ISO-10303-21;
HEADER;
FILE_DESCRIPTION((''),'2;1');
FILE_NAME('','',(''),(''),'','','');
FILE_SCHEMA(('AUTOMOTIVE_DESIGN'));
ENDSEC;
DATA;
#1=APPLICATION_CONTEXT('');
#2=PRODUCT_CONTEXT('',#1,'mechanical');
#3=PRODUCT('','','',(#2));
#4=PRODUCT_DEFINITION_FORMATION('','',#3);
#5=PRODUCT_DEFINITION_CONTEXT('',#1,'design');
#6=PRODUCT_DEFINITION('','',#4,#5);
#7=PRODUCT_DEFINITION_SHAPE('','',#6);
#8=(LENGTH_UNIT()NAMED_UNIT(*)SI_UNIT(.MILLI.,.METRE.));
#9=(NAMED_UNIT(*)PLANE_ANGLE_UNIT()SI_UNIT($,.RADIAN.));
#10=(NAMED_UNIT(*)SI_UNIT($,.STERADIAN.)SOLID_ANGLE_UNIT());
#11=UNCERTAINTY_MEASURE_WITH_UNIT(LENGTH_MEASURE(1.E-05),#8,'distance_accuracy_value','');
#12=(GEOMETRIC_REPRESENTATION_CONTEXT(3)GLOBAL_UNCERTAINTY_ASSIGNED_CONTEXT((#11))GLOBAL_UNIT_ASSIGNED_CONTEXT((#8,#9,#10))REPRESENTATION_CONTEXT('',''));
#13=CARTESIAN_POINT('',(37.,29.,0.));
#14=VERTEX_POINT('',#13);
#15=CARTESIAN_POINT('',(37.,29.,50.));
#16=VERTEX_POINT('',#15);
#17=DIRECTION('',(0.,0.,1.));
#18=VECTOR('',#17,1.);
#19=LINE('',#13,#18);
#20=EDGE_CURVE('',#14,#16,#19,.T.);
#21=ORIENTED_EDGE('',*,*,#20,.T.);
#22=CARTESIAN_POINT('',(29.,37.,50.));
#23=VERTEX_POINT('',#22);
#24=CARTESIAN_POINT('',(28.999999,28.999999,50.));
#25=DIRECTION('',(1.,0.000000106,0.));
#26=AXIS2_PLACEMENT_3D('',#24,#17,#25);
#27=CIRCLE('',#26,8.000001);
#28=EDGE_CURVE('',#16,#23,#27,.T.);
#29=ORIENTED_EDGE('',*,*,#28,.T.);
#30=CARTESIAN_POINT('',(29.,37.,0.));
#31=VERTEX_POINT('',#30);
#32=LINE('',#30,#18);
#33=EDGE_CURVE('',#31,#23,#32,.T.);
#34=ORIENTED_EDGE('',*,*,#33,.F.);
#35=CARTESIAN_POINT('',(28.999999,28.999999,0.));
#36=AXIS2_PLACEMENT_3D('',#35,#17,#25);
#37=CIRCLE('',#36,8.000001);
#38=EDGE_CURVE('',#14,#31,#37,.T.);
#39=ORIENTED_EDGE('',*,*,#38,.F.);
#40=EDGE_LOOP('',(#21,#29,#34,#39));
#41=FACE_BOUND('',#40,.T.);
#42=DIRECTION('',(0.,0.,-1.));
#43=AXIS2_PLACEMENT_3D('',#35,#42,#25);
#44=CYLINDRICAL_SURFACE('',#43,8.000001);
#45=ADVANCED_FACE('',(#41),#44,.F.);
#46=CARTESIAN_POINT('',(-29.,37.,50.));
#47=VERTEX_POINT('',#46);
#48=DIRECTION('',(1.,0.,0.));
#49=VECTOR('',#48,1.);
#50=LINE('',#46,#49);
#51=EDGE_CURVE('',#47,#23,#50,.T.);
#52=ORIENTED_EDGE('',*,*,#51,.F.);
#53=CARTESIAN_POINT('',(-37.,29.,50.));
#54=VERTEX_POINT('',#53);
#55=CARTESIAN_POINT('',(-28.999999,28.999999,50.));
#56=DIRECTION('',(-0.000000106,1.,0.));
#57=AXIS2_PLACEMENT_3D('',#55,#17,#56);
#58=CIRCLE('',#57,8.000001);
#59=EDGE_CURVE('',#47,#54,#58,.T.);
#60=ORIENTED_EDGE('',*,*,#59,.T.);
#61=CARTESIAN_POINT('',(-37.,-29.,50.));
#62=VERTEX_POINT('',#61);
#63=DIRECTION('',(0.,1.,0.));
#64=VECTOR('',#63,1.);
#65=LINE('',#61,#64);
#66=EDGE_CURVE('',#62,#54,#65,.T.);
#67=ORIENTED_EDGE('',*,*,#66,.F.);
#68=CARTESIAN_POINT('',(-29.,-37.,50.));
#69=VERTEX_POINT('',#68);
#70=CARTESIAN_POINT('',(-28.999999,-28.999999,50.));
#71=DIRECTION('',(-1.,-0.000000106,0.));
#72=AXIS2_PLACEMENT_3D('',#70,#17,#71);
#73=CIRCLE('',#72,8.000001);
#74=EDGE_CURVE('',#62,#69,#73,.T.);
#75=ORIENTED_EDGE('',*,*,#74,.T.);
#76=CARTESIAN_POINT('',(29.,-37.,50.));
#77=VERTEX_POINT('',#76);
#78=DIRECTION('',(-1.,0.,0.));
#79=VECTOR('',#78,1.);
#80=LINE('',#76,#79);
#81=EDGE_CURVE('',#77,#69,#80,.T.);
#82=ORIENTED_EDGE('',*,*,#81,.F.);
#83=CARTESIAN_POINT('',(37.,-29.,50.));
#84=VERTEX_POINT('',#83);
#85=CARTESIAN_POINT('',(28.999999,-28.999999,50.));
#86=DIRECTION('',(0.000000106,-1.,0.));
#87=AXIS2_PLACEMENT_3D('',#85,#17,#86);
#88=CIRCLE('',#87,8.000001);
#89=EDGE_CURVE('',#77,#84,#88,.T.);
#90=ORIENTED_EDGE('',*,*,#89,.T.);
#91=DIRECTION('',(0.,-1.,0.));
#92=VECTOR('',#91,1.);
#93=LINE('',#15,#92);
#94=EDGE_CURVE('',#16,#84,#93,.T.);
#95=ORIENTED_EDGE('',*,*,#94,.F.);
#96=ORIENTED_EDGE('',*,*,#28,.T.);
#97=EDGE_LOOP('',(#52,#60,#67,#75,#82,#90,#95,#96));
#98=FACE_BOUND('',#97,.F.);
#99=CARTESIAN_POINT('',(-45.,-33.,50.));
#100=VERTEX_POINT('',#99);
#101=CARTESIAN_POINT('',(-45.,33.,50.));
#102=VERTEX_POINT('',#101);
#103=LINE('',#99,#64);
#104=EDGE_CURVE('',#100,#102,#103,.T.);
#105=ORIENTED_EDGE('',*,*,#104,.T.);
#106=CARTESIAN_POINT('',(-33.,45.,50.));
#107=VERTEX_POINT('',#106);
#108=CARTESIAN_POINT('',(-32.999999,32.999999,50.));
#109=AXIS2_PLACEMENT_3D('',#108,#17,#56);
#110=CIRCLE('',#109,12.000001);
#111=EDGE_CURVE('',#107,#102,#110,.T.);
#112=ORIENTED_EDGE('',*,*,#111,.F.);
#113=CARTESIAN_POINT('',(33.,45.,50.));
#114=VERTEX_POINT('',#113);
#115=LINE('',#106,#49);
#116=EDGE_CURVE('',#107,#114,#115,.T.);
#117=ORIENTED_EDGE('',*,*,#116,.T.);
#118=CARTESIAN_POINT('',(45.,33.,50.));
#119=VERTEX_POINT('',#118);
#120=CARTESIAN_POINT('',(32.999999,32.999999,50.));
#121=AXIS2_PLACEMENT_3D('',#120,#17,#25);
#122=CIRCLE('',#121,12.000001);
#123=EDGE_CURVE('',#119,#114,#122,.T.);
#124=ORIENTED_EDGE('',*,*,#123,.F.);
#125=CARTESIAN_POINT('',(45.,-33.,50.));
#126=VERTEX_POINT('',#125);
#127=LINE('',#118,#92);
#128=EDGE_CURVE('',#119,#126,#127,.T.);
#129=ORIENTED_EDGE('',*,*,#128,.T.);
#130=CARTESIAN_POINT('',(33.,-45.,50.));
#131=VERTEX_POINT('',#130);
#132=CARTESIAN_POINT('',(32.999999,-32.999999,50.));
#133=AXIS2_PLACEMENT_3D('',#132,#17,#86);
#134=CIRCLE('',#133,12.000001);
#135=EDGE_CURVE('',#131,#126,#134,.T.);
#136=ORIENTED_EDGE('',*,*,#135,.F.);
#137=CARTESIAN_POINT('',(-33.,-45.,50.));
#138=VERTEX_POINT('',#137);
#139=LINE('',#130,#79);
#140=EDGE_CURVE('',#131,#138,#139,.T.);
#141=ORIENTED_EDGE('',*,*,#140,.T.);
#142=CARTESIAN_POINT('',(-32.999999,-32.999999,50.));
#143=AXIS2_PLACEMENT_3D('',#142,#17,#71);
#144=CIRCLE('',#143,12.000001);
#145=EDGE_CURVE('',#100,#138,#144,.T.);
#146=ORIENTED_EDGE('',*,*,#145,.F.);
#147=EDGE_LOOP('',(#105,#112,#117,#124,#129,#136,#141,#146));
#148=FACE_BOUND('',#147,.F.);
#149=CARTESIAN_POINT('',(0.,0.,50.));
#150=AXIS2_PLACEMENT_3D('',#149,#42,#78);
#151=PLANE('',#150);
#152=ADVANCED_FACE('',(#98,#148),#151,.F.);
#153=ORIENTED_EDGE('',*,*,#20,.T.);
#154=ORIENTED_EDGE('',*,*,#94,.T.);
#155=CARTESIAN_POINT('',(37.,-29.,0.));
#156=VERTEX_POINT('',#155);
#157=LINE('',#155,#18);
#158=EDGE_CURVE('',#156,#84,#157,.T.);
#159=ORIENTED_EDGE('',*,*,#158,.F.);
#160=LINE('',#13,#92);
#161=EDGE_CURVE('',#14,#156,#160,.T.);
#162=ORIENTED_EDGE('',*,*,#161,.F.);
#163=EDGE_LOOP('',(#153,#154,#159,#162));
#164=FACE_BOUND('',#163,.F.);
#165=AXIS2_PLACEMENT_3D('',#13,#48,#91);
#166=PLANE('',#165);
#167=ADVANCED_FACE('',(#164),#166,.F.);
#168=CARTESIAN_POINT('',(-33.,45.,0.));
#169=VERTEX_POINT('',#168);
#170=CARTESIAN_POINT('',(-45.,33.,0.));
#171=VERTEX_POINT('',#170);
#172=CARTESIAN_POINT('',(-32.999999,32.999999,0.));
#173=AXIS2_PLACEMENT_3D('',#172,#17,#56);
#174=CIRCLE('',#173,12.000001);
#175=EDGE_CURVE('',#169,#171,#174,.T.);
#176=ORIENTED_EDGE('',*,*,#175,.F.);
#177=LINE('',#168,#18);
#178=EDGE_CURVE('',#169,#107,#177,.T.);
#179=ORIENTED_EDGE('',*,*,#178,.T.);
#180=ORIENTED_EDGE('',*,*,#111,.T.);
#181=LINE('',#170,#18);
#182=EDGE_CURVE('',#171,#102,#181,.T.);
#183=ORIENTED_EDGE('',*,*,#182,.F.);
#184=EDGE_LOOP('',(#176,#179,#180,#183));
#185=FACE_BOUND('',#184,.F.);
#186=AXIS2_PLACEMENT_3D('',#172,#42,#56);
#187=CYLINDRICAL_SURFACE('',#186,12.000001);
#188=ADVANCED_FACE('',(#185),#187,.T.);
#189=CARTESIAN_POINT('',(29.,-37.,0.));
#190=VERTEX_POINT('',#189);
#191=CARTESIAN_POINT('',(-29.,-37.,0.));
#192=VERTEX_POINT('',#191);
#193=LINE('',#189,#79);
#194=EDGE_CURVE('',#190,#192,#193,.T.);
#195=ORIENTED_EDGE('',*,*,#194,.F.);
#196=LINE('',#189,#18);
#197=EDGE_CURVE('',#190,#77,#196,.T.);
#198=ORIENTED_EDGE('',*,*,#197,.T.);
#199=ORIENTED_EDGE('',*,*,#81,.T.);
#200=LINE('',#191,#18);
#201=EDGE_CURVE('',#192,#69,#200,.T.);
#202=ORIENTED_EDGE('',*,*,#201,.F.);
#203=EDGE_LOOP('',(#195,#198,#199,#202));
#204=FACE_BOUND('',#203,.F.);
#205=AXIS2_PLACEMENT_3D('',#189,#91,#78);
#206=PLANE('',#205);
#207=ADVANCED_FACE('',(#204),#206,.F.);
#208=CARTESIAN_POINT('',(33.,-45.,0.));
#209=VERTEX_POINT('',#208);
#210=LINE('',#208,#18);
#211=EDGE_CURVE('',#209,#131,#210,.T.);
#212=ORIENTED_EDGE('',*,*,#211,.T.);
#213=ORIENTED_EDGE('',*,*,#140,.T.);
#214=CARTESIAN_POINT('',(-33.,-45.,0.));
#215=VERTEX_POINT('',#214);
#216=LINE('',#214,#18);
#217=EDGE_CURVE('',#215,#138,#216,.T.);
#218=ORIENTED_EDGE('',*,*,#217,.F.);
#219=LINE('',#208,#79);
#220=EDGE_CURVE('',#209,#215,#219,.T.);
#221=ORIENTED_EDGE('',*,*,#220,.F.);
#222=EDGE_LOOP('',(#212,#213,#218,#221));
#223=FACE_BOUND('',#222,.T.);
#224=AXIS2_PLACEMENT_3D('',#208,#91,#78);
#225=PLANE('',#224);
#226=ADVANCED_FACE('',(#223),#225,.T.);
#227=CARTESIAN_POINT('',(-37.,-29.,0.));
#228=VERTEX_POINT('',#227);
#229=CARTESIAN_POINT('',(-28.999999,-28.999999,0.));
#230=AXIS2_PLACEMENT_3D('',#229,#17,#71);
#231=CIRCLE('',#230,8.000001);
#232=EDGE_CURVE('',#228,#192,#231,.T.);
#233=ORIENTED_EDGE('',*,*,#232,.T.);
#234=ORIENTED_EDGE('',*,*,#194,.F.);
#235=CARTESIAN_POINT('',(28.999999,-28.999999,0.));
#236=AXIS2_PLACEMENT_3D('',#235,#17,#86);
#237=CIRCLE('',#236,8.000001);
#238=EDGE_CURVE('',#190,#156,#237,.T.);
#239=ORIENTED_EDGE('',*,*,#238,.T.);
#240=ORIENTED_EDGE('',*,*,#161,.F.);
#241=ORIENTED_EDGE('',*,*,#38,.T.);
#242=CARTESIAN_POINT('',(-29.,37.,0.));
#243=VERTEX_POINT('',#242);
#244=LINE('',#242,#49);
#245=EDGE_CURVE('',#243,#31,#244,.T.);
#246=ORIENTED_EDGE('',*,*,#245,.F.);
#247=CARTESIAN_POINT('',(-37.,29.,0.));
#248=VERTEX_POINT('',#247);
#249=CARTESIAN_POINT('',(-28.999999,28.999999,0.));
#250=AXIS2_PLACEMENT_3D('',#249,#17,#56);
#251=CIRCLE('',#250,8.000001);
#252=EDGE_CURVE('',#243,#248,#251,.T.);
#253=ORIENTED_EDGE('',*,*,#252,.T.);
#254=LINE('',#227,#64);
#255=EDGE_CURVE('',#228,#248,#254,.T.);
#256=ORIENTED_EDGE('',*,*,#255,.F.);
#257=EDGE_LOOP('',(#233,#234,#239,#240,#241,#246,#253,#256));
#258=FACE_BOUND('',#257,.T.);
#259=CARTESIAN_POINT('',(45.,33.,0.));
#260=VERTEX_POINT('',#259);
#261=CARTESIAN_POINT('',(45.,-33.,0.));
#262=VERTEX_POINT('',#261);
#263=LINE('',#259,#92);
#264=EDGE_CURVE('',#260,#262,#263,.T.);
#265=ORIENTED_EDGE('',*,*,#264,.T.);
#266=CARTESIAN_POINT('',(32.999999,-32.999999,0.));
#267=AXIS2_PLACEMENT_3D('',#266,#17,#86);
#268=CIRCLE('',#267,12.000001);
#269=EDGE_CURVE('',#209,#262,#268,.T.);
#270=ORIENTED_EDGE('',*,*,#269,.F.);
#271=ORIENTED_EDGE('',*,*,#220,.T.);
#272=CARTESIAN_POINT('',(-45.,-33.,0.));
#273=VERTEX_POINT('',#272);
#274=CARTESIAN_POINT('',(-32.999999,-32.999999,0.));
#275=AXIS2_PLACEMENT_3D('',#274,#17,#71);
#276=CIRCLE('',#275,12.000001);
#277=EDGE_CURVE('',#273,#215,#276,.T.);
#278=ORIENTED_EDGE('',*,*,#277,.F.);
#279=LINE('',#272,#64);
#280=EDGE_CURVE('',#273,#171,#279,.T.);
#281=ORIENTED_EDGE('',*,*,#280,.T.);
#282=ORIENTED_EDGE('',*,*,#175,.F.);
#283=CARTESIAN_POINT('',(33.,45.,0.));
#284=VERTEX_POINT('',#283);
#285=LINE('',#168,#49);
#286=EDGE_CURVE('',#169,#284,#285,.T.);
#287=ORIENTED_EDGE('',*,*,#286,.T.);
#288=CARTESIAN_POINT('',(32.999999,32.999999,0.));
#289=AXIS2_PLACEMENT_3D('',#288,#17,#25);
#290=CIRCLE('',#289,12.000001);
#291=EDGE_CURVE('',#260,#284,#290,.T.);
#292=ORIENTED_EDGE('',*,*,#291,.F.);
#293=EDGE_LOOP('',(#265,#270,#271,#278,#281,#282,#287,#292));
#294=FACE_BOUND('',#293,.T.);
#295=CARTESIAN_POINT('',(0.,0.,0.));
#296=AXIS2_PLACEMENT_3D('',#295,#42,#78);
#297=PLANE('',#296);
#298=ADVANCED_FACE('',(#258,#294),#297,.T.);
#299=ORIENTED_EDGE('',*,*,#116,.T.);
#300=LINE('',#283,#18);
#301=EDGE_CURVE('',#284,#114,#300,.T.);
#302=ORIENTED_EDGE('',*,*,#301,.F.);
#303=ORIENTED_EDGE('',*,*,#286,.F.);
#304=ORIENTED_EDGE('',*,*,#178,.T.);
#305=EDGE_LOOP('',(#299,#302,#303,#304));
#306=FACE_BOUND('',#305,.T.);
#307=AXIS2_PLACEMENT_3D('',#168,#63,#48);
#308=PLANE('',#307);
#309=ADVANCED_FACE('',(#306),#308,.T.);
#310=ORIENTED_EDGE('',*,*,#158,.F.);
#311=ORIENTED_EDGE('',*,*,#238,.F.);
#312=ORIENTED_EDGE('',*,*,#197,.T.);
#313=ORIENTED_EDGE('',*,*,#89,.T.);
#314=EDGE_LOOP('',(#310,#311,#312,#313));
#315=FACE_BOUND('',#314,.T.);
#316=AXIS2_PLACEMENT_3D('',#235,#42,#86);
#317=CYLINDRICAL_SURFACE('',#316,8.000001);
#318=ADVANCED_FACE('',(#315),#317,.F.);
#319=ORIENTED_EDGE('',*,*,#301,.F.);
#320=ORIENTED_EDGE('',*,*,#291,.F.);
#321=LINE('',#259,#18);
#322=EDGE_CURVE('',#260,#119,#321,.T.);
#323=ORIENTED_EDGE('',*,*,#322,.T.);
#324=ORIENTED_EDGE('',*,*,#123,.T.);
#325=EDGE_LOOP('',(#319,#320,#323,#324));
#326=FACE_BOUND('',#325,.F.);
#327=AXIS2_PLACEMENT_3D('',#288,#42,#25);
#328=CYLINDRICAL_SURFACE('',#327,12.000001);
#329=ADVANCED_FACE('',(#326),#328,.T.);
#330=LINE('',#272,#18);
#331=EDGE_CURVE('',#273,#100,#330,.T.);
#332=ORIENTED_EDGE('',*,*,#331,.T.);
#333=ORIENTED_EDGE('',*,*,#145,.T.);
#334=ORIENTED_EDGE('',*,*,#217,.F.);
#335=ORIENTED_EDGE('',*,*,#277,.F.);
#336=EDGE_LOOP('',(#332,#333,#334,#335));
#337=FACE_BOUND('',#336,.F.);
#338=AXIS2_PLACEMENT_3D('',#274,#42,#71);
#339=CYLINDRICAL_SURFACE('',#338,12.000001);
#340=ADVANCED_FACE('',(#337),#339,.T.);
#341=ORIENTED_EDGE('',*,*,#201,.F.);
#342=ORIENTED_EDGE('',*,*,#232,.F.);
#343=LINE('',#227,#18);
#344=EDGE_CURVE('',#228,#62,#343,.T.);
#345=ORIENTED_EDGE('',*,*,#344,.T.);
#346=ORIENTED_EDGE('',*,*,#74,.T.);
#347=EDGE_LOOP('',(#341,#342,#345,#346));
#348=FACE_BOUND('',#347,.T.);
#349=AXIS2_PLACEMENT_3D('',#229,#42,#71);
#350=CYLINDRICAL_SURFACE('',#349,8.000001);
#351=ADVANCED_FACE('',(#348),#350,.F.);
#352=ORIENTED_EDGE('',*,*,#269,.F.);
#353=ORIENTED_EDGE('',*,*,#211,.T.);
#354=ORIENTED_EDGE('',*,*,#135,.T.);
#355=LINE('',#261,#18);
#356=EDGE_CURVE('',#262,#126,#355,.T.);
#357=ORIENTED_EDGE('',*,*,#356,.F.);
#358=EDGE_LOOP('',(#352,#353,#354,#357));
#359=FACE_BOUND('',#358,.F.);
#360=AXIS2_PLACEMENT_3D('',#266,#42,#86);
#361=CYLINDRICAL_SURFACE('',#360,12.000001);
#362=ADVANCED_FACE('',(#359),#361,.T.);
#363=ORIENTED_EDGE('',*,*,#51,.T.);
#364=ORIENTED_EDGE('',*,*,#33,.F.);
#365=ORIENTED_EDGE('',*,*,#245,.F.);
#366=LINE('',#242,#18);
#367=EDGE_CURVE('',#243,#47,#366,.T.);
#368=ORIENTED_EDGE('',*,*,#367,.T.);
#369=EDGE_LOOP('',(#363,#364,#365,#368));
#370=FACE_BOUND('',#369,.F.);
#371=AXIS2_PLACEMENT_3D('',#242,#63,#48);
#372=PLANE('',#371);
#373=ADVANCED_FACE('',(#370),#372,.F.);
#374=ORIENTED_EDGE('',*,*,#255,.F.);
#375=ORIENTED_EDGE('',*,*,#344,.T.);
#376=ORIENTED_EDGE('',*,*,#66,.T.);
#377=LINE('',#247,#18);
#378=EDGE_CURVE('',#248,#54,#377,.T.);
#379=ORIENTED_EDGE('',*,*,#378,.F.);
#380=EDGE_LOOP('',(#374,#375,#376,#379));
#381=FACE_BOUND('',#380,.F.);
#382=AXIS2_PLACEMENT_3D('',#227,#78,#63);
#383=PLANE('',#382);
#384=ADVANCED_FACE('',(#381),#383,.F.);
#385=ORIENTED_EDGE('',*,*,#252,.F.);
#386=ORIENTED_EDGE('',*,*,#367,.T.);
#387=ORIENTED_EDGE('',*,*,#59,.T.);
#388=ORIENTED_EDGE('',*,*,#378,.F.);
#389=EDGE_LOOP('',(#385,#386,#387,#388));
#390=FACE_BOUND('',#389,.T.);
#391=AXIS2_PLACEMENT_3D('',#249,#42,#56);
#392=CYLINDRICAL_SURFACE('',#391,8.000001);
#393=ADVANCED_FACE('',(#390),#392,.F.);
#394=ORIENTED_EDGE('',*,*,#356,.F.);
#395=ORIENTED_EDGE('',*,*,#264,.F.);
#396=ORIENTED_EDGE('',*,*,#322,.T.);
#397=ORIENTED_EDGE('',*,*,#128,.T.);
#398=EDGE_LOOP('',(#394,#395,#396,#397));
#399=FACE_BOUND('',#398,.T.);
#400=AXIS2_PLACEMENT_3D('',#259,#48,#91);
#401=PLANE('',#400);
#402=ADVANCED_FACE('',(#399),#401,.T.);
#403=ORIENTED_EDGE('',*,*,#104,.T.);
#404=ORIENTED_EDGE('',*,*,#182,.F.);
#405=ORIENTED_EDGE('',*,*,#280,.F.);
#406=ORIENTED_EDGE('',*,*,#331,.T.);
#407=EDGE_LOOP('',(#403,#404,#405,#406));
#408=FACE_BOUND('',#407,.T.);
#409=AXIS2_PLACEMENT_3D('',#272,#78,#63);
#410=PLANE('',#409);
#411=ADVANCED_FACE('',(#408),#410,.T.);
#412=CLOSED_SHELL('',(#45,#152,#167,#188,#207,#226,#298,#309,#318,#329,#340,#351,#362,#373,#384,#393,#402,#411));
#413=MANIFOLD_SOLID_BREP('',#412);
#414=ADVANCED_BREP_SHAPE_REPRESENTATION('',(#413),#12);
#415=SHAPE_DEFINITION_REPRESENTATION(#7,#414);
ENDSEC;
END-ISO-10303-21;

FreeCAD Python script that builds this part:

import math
import FreeCAD as App
import Part
import Sketcher

doc = App.newDocument("Part")
params = doc.addObject("Spreadsheet::Sheet", "Params")
for row, (alias, value) in enumerate([
    ("sketch1_radius", "12.000001 mm"),
    ("sketch1_radius2", "8.000001 mm"),
    ("sketch1_width", "66 mm"),
    ("sketch1_width2", "58 mm"),
    ("pad1_length", "50 mm"),
], start=1):
    params.set(f"A{row}", alias)
    params.set(f"B{row}", "=" + value)
    params.setAlias(f"B{row}", alias)

body = doc.addObject("PartDesign::Body", "Body")

sketch1 = body.newObject("Sketcher::SketchObject", "Sketch")
sketch1.AttachmentSupport = (doc.getObject("XY_Plane"), [""])
sketch1.MapMode = "FlatFace"
sketch1.addGeometry(Part.LineSegment(App.Vector(33, 45, 0), App.Vector(-33, 45, 0)), False)
sketch1.addGeometry(Part.ArcOfCircle(Part.Circle(App.Vector(-33, 33, 0), App.Vector(0, 0, 1), 12), math.radians(90), math.radians(180)), False)
sketch1.addGeometry(Part.LineSegment(App.Vector(-45, 33, 0), App.Vector(-45, -33, 0)), False)
sketch1.addGeometry(Part.ArcOfCircle(Part.Circle(App.Vector(-33, -33, 0), App.Vector(0, 0, 1), 12), math.radians(-180), math.radians(-90)), False)
sketch1.addGeometry(Part.LineSegment(App.Vector(-33, -45, 0), App.Vector(33, -45, 0)), False)
sketch1.addGeometry(Part.ArcOfCircle(Part.Circle(App.Vector(33, -33, 0), App.Vector(0, 0, 1), 12), math.radians(-90), math.radians(0)), False)
sketch1.addGeometry(Part.LineSegment(App.Vector(45, -33, 0), App.Vector(45, 33, 0)), False)
sketch1.addGeometry(Part.ArcOfCircle(Part.Circle(App.Vector(33, 33, 0), App.Vector(0, 0, 1), 12), math.radians(0), math.radians(90)), False)
sketch1.addGeometry(Part.LineSegment(App.Vector(-29, 37, 0), App.Vector(29, 37, 0)), False)
sketch1.addGeometry(Part.ArcOfCircle(Part.Circle(App.Vector(29, 29, 0), App.Vector(0, 0, 1), 8), math.radians(0), math.radians(90)), False)
sketch1.addGeometry(Part.LineSegment(App.Vector(37, 29, 0), App.Vector(37, -29, 0)), False)
sketch1.addGeometry(Part.ArcOfCircle(Part.Circle(App.Vector(29, -29, 0), App.Vector(0, 0, 1), 8), math.radians(-90), math.radians(0)), False)
sketch1.addGeometry(Part.LineSegment(App.Vector(29, -37, 0), App.Vector(-29, -37, 0)), False)
sketch1.addGeometry(Part.ArcOfCircle(Part.Circle(App.Vector(-29, -29, 0), App.Vector(0, 0, 1), 8), math.radians(-180), math.radians(-90)), False)
sketch1.addGeometry(Part.LineSegment(App.Vector(-37, -29, 0), App.Vector(-37, 29, 0)), False)
sketch1.addGeometry(Part.ArcOfCircle(Part.Circle(App.Vector(-29, 29, 0), App.Vector(0, 0, 1), 8), math.radians(90), math.radians(180)), False)
sketch1.addConstraint(Sketcher.Constraint("Tangent", 0, 2, 1, 1))
sketch1.addConstraint(Sketcher.Constraint("Tangent", 1, 2, 2, 1))
sketch1.addConstraint(Sketcher.Constraint("Tangent", 2, 2, 3, 1))
sketch1.addConstraint(Sketcher.Constraint("Tangent", 3, 2, 4, 1))
sketch1.addConstraint(Sketcher.Constraint("Tangent", 4, 2, 5, 1))
sketch1.addConstraint(Sketcher.Constraint("Tangent", 5, 2, 6, 1))
sketch1.addConstraint(Sketcher.Constraint("Tangent", 6, 2, 7, 1))
sketch1.addConstraint(Sketcher.Constraint("Tangent", 7, 2, 0, 1))
sketch1.addConstraint(Sketcher.Constraint("Tangent", 8, 2, 9, 2))
sketch1.addConstraint(Sketcher.Constraint("Tangent", 9, 1, 10, 1))
sketch1.addConstraint(Sketcher.Constraint("Tangent", 10, 2, 11, 2))
sketch1.addConstraint(Sketcher.Constraint("Tangent", 11, 1, 12, 1))
sketch1.addConstraint(Sketcher.Constraint("Tangent", 12, 2, 13, 2))
sketch1.addConstraint(Sketcher.Constraint("Tangent", 13, 1, 14, 1))
sketch1.addConstraint(Sketcher.Constraint("Tangent", 14, 2, 15, 2))
sketch1.addConstraint(Sketcher.Constraint("Tangent", 15, 1, 8, 1))
sketch1.addConstraint(Sketcher.Constraint("Horizontal", 0))
sketch1.addConstraint(Sketcher.Constraint("Vertical", 2))
sketch1.addConstraint(Sketcher.Constraint("Horizontal", 4))
sketch1.addConstraint(Sketcher.Constraint("Vertical", 6))
sketch1.addConstraint(Sketcher.Constraint("Horizontal", 8))
sketch1.addConstraint(Sketcher.Constraint("Vertical", 10))
sketch1.addConstraint(Sketcher.Constraint("Horizontal", 12))
sketch1.addConstraint(Sketcher.Constraint("Vertical", 14))
sketch1.addConstraint(Sketcher.Constraint("Equal", 1, 3))
sketch1.addConstraint(Sketcher.Constraint("Equal", 3, 5))
sketch1.addConstraint(Sketcher.Constraint("Equal", 5, 7))
sketch1.addConstraint(Sketcher.Constraint("Equal", 9, 11))
sketch1.addConstraint(Sketcher.Constraint("Equal", 11, 13))
sketch1.addConstraint(Sketcher.Constraint("Equal", 13, 15))
sketch1.addConstraint(Sketcher.Constraint("Symmetric", 1, 3, 5, 3, -1, 1))
sketch1.addConstraint(Sketcher.Constraint("Symmetric", 9, 3, 13, 3, -1, 1))
sketch1.addConstraint(Sketcher.Constraint("Equal", 4, 2))
sketch1.addConstraint(Sketcher.Constraint("Equal", 12, 10))
sketch1.addConstraint(Sketcher.Constraint("Radius", 1, 12.000001))
sketch1.addConstraint(Sketcher.Constraint("Radius", 9, 8.000001))
sketch1.addConstraint(Sketcher.Constraint("DistanceX", 0, 2, 0, 1, 66.0))
sketch1.addConstraint(Sketcher.Constraint("DistanceX", 8, 1, 8, 2, 58.0))
sketch1.setExpression("Constraints[34]", "Params.sketch1_radius")
sketch1.setExpression("Constraints[35]", "Params.sketch1_radius2")
sketch1.setExpression("Constraints[36]", "Params.sketch1_width")
sketch1.setExpression("Constraints[37]", "Params.sketch1_width2")
pad1 = body.newObject("PartDesign::Pad", "Pad")
pad1.Profile = sketch1
pad1.setExpression("Length", "Params.pad1_length")

doc.recompute()
